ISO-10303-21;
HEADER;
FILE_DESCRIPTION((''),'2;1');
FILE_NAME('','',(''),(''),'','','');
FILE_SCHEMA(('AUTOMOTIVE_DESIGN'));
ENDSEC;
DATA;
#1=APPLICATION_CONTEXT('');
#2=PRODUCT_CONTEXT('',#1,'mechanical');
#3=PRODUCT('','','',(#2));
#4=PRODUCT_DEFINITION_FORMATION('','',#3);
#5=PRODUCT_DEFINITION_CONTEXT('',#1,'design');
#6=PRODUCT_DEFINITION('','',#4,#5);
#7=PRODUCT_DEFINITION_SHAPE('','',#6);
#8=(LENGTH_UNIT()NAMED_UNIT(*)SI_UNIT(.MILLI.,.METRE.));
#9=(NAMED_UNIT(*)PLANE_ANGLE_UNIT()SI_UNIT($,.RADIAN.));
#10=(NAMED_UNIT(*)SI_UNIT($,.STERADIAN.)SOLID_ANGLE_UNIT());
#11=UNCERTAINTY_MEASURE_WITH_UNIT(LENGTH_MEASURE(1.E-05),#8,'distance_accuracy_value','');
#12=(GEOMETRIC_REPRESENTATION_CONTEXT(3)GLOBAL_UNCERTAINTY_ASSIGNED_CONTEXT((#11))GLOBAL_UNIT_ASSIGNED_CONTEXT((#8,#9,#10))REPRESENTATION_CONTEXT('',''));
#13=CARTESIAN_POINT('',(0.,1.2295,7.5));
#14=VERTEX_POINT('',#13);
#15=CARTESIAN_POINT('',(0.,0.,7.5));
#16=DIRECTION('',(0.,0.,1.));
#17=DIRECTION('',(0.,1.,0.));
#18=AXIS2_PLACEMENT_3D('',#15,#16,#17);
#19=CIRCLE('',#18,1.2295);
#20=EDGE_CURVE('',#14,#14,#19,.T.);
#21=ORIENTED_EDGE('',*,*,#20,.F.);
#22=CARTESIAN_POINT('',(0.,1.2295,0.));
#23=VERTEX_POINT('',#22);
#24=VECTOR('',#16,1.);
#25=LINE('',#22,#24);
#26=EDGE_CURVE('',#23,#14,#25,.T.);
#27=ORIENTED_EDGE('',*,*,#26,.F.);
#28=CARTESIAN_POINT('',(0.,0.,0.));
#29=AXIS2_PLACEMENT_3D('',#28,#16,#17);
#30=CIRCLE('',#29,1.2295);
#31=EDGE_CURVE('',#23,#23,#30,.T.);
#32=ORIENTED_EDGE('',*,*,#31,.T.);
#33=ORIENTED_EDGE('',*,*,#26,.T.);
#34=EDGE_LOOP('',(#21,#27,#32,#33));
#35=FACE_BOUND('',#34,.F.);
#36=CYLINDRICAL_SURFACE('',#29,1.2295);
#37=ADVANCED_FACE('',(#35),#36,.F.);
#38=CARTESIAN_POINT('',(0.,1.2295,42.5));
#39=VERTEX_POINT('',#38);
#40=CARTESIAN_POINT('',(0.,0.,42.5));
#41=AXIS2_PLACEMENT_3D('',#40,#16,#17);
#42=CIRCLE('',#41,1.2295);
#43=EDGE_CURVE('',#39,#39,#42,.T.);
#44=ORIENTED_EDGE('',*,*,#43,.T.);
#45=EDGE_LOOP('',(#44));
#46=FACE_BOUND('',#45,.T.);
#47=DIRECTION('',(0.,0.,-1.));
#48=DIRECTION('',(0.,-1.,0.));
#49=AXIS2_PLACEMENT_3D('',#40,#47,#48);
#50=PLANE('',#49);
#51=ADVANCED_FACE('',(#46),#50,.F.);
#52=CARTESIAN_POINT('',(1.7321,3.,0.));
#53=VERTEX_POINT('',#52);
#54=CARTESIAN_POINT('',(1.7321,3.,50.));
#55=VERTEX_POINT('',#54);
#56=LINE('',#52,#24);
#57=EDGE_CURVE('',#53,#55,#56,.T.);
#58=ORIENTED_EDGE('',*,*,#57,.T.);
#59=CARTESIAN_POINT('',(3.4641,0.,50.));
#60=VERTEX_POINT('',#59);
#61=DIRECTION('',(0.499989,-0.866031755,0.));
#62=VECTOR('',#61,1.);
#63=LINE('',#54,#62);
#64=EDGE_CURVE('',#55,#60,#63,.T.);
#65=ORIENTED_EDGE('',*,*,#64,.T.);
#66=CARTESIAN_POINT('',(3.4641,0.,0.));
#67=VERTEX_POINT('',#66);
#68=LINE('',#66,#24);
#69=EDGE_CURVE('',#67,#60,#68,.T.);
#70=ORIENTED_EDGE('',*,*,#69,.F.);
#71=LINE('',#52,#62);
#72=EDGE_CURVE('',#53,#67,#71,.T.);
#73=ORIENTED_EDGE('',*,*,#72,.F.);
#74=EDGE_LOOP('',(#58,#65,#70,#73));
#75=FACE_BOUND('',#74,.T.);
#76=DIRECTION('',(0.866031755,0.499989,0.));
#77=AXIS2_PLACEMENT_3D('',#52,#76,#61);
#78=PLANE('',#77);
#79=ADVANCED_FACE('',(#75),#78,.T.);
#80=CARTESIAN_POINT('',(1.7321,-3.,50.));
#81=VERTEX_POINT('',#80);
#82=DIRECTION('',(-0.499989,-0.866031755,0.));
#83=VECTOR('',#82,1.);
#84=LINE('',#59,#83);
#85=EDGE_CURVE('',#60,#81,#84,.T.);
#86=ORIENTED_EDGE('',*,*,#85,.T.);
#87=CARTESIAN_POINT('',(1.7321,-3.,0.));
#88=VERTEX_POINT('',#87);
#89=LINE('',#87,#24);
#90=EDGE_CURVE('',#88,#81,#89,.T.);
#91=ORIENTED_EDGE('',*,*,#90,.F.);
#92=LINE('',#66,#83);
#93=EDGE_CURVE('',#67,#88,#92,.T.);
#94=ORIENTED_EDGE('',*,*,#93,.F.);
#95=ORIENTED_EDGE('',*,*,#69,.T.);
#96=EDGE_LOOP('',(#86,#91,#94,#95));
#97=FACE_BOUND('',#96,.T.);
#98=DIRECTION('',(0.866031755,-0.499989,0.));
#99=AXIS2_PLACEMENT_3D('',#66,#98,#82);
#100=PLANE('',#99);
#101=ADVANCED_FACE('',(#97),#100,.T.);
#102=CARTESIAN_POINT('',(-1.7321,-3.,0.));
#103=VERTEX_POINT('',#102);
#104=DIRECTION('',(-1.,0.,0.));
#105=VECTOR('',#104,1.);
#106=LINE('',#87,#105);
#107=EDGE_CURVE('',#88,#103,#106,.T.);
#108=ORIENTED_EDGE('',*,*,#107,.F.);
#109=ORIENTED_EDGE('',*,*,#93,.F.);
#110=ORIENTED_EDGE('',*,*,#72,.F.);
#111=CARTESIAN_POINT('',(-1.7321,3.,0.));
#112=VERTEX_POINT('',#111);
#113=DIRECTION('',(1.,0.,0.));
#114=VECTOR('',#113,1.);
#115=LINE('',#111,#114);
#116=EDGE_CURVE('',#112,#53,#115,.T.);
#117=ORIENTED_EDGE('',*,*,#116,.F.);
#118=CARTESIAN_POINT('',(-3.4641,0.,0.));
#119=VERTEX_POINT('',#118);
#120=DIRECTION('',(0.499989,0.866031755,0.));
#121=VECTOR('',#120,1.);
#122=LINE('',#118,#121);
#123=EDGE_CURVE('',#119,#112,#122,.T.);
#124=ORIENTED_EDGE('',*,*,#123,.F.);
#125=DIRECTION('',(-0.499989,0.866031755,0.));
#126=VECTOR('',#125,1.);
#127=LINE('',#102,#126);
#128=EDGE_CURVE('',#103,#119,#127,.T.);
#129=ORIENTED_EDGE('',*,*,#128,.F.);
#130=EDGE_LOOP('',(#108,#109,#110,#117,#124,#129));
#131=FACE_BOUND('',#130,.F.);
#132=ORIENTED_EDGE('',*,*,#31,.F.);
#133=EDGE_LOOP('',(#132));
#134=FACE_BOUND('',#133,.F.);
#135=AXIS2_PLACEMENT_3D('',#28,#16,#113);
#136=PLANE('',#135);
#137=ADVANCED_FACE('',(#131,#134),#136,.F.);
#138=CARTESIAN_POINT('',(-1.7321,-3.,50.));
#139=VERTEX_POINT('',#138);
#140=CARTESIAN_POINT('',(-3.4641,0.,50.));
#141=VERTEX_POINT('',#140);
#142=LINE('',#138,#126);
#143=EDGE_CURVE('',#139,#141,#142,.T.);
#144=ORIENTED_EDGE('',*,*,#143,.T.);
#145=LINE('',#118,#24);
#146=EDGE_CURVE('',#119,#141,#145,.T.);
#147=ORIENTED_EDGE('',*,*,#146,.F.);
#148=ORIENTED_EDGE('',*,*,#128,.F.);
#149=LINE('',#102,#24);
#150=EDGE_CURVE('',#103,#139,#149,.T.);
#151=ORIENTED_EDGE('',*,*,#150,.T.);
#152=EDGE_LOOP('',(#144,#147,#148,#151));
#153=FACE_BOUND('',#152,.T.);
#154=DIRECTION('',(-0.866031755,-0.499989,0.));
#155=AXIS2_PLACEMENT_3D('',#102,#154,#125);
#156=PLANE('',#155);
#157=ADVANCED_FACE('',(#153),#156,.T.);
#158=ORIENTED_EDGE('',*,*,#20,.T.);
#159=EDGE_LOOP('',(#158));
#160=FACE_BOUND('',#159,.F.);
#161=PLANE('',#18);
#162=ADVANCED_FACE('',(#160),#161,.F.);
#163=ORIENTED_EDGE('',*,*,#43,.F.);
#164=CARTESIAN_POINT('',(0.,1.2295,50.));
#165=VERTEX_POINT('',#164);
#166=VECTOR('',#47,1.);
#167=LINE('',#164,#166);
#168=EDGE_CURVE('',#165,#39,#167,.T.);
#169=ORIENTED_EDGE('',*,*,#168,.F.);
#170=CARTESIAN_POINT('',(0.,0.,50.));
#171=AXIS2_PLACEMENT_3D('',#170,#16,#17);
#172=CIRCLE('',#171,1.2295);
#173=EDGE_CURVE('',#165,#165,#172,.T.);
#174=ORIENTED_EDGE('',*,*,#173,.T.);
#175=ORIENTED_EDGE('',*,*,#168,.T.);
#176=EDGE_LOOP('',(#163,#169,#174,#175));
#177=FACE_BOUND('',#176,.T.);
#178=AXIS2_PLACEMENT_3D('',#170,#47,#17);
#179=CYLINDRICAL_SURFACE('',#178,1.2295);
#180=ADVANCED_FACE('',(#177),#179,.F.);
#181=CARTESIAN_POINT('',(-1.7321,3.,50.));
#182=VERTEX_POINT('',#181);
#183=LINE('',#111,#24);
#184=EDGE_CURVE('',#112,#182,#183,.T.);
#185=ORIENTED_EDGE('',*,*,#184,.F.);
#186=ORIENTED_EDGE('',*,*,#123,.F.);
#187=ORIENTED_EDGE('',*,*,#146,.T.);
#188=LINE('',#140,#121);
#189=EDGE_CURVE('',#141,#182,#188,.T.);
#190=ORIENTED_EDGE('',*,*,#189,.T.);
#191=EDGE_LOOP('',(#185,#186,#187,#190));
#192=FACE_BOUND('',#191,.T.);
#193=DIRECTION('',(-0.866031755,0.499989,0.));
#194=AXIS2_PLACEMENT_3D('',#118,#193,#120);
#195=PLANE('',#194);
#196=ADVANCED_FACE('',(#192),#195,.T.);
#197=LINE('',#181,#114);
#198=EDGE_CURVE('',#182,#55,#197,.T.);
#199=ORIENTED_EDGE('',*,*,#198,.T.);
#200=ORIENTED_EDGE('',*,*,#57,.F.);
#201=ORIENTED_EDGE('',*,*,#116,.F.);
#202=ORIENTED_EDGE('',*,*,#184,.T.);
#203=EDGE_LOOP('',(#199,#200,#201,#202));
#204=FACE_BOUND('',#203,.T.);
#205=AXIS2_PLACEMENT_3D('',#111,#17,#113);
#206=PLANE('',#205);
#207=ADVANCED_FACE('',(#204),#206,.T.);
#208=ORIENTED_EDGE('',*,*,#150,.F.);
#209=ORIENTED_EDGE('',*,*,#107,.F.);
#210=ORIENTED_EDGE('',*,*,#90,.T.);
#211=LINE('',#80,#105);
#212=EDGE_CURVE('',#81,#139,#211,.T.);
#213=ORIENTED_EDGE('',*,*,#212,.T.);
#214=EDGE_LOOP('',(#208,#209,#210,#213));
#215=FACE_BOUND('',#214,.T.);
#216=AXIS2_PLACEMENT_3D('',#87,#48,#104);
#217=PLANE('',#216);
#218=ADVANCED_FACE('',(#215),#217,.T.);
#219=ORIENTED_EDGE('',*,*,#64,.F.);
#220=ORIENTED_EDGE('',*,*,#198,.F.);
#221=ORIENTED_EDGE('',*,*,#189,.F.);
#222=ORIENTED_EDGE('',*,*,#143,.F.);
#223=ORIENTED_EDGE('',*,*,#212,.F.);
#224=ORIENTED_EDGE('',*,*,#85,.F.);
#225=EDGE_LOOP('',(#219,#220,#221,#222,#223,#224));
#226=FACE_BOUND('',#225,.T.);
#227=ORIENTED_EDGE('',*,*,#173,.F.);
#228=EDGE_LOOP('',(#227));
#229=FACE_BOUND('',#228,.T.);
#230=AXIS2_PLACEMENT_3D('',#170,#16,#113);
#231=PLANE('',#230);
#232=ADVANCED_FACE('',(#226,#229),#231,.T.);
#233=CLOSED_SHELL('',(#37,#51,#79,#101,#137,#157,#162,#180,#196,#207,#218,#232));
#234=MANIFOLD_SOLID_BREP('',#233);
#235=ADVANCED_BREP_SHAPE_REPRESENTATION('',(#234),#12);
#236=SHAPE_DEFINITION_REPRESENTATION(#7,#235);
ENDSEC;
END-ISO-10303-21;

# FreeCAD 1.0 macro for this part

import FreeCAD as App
import Part
import Sketcher

V = App.Vector
Q = App.Units.Quantity

doc = App.newDocument("Part")
body = doc.addObject("PartDesign::Body", "Body")

sketch1 = doc.addObject("Sketcher::SketchObject", "Sketch")
body.addObject(sketch1)
sketch1.AttachmentSupport = (doc.XY_Plane, [""])
sketch1.MapMode = "FlatFace"
sketch1.addGeometry([
    Part.LineSegment(V(3.4641, 0, 0), V(1.7321, 3, 0)),
    Part.LineSegment(V(1.7321, 3, 0), V(-1.7321, 3, 0)),
    Part.LineSegment(V(-1.7321, 3, 0), V(-3.4641, 0, 0)),
    Part.LineSegment(V(-3.4641, 0, 0), V(-1.7321, -3, 0)),
    Part.LineSegment(V(-1.7321, -3, 0), V(1.7321, -3, 0)),
    Part.LineSegment(V(1.7321, -3, 0), V(3.4641, 0, 0)),
], False)
sketch1.addConstraint([
    Sketcher.Constraint("Coincident", 0, 2, 1, 1),
    Sketcher.Constraint("Coincident", 1, 2, 2, 1),
    Sketcher.Constraint("Coincident", 2, 2, 3, 1),
    Sketcher.Constraint("Coincident", 3, 2, 4, 1),
    Sketcher.Constraint("Coincident", 4, 2, 5, 1),
    Sketcher.Constraint("Coincident", 5, 2, 0, 1),
    Sketcher.Constraint("Horizontal", 1),
    Sketcher.Constraint("Horizontal", 4),
    Sketcher.Constraint("Symmetric", 0, 2, 3, 2, -1, 1),
    Sketcher.Constraint("Symmetric", 2, 2, 5, 2, -1, 1),
    Sketcher.Constraint("PointOnObject", 2, 2, -1),
    Sketcher.Constraint("Parallel", 2, 5),
    Sketcher.Constraint("Vertical", 1, 2, 3, 2),
    Sketcher.Constraint("DistanceY", 3, 2, 1, 2, Q("6 mm")),
    Sketcher.Constraint("Angle", 0, Q("119.9993 deg")),
    Sketcher.Constraint("DistanceX", 1, 2, 1, 1, Q("3.4642 mm")),
])
pad1 = doc.addObject("PartDesign::Pad", "Pad")
body.addObject(pad1)
pad1.Profile = sketch1
pad1.Length = 50

sketch2 = doc.addObject("Sketcher::SketchObject", "Sketch001")
body.addObject(sketch2)
sketch2.AttachmentSupport = (doc.XY_Plane, [""])
sketch2.MapMode = "FlatFace"
sketch2.addGeometry(Part.Circle(V(0, 0, 0), V(0, 0, 1), 1.2295), False)
sketch2.addConstraint([
    Sketcher.Constraint("Coincident", 0, 3, -1, 1),
    Sketcher.Constraint("Diameter", 0, Q("2.459 mm")),
])
doc.recompute()
hole = doc.addObject("PartDesign::Hole", "Hole")
body.addObject(hole)
hole.Profile = sketch2
hole.ThreadType = "None"
hole.Diameter = 2.459
hole.DepthType = "Dimension"
hole.Depth = 7.5
hole.DrillPoint = "Flat"
hole.Reversed = True
doc.recompute()

datumplane = doc.addObject("PartDesign::Plane", "DatumPlane")
body.addObject(datumplane)
datumplane.AttachmentSupport = (doc.XY_Plane, [""])
datumplane.MapMode = "FlatFace"
datumplane.AttachmentOffset = App.Placement(V(0, 0, 25), App.Rotation())
mirrored = doc.addObject("PartDesign::Mirrored", "Mirrored")
body.addObject(mirrored)
mirrored.Originals = [hole]
mirrored.MirrorPlane = (datumplane, [""])
body.Tip = mirrored

doc.recompute()
